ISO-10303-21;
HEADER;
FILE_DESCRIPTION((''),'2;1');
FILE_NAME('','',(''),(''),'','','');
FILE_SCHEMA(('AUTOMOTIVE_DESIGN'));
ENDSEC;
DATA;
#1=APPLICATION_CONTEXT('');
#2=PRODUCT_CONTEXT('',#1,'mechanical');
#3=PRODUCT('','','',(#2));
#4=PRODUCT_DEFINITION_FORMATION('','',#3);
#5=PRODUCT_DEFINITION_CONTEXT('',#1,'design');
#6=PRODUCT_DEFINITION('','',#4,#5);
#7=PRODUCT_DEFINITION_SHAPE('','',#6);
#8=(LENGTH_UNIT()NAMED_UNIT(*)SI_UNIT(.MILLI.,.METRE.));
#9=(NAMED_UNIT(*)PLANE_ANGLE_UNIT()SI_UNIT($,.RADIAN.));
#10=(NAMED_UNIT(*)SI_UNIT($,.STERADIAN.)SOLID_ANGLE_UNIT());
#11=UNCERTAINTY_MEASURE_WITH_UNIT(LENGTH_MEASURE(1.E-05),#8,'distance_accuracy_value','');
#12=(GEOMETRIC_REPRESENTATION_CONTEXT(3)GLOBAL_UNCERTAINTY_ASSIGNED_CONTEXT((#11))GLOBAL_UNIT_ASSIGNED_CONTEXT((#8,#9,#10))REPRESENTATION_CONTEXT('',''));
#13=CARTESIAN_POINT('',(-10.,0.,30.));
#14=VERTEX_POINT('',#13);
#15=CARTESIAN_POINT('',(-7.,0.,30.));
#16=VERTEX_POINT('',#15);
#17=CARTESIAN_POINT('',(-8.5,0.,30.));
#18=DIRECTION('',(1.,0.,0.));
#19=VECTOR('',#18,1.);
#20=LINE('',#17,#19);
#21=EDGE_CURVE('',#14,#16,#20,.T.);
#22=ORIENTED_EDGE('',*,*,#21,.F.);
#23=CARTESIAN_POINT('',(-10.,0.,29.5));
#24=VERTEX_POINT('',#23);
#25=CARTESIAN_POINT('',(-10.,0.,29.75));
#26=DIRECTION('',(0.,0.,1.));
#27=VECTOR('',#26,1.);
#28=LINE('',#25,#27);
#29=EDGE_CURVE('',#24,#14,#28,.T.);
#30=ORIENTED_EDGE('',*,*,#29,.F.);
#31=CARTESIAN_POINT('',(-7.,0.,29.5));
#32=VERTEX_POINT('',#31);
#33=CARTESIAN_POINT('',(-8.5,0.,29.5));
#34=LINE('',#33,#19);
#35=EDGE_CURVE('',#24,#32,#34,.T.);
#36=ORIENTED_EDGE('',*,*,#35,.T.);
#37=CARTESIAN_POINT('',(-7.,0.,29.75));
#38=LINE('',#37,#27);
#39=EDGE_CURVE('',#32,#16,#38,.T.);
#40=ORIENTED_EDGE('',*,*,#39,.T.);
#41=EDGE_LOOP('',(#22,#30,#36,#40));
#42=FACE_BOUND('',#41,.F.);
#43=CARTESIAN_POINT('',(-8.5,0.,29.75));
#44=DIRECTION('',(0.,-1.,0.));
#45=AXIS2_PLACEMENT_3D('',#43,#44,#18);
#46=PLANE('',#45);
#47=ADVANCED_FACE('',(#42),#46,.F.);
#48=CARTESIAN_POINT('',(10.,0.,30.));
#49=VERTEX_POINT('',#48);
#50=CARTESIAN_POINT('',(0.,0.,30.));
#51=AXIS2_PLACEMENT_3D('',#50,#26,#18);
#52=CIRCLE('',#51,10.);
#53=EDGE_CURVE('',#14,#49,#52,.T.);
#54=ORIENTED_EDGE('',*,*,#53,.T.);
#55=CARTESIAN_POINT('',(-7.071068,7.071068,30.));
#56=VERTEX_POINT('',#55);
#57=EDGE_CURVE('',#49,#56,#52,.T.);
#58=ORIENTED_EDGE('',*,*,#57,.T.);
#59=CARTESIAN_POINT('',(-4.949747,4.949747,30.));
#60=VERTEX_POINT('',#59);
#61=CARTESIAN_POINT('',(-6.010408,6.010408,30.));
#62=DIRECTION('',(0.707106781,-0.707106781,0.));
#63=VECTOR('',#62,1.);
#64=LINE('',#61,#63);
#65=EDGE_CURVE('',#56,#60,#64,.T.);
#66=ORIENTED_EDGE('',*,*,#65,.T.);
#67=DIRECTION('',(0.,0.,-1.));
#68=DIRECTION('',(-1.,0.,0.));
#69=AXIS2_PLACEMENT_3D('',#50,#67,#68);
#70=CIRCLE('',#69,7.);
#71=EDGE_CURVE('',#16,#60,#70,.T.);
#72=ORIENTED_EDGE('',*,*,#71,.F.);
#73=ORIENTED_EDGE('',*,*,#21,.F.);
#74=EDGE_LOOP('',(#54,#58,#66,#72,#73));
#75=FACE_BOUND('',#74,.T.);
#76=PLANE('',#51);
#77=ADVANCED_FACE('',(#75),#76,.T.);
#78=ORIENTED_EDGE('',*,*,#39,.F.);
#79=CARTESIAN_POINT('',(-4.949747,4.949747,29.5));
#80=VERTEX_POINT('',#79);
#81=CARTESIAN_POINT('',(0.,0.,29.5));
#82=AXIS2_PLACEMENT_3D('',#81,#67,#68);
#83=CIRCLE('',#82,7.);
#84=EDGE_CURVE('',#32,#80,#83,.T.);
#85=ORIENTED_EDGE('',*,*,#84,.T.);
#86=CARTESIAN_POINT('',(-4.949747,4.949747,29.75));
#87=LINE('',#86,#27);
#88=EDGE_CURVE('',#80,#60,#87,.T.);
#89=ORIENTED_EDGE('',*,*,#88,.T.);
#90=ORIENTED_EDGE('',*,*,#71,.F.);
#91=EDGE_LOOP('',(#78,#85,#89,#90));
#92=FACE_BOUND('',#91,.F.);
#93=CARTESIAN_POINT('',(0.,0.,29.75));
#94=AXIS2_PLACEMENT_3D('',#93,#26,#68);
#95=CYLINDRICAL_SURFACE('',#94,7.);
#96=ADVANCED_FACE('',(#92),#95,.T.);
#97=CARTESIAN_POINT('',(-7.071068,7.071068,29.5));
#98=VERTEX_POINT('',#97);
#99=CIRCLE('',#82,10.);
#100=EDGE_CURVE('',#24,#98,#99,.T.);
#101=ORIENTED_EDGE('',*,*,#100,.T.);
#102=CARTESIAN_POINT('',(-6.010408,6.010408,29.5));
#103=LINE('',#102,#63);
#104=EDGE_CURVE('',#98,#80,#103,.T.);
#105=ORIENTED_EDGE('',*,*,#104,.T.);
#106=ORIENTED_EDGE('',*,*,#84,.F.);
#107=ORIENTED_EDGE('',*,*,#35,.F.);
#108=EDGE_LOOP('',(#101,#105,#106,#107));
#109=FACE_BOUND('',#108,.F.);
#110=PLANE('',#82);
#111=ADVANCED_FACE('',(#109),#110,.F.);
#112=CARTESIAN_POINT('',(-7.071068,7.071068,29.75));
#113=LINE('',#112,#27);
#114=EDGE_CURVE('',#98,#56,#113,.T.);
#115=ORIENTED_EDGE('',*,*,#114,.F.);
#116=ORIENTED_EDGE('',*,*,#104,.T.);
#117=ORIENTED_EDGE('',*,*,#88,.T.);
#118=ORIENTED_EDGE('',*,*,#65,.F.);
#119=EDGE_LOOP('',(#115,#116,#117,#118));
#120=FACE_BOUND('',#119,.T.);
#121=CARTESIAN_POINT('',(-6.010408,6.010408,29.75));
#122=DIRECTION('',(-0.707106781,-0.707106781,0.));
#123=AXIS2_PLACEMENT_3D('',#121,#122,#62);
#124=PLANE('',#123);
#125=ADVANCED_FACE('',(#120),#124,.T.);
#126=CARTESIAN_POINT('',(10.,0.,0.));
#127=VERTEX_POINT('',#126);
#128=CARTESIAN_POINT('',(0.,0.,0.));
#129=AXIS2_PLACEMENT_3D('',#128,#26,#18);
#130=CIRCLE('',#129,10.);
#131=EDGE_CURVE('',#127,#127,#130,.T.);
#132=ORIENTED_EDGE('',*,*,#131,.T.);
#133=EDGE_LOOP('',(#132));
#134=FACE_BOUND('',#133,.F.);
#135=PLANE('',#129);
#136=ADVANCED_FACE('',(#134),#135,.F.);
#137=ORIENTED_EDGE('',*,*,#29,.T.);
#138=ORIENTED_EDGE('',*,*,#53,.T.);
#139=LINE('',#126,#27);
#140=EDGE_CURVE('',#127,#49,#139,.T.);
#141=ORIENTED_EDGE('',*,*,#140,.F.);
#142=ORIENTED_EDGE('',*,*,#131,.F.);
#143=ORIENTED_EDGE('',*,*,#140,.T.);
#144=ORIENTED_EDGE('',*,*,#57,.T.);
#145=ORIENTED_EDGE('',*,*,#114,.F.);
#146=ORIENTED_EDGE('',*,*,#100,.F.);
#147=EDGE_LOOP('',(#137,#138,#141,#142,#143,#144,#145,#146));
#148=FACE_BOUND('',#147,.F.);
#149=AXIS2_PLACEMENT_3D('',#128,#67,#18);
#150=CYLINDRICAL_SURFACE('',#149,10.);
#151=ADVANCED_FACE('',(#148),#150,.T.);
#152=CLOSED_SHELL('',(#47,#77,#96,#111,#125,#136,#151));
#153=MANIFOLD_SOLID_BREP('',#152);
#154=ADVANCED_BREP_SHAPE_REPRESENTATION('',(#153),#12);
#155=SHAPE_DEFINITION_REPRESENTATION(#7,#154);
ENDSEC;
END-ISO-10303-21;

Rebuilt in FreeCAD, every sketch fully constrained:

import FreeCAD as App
import Part
import Sketcher
from FreeCAD import Vector
Q = App.Units.Quantity


def add_polygon(sketch, points):
    """Adds a closed chain of lines whose ends are joined by coincident constraints."""
    first, n = sketch.GeometryCount, len(points)
    for a, b in zip(points, points[1:] + points[:1]):
        sketch.addGeometry(Part.LineSegment(App.Vector(*a, 0), App.Vector(*b, 0)), False)
    for i in range(n):
        sketch.addConstraint(Sketcher.Constraint("Coincident", first + i, 2, first + (i + 1) % n, 1))

doc = App.newDocument("Part")
body = doc.addObject("PartDesign::Body", "Body")

# Sketch on XY plane
sketch1 = body.newObject("Sketcher::SketchObject", "Sketch")
sketch1.AttachmentSupport = (doc.getObject("XY_Plane"), [""])
sketch1.MapMode = "FlatFace"
sketch1.addGeometry(Part.Circle(Vector(0, 0, 0), Vector(0, 0, 1), 10), False)
sketch1.addConstraint([
    Sketcher.Constraint("Coincident", 0, 3, -1, 1),
    Sketcher.Constraint("Diameter", 0, Q("20 mm")),
])
pad1 = body.newObject("PartDesign::Pad", "Pad")
pad1.Profile = sketch1
pad1.Length = 30

# Sketch on XZ plane
sketch2 = body.newObject("Sketcher::SketchObject", "Sketch001")
sketch2.AttachmentSupport = (doc.getObject("XZ_Plane"), [""])
sketch2.MapMode = "FlatFace"
add_polygon(sketch2, [(-10, 30), (-10, 29.5), (-7, 29.5), (-7, 30)])  # lines 0-3
sketch2.addConstraint([
    Sketcher.Constraint("Vertical", 0),
    Sketcher.Constraint("Horizontal", 1),
    Sketcher.Constraint("Vertical", 2),
    Sketcher.Constraint("Horizontal", 3),
    Sketcher.Constraint("DistanceX", 1, 1, 1, 2, Q("3 mm")),
    Sketcher.Constraint("DistanceY", 0, 2, 0, 1, Q("0.5 mm")),
    Sketcher.Constraint("DistanceX", 0, 2, -1, 1, Q("10 mm")),
    Sketcher.Constraint("DistanceY", -1, 1, 2, 2, Q("30 mm")),
])
groove = body.newObject("PartDesign::Groove", "Groove")
groove.Profile = sketch2
groove.ReferenceAxis = (sketch2, ["V_Axis"])
groove.Angle = 45
groove.Reversed = True

doc.recompute()
